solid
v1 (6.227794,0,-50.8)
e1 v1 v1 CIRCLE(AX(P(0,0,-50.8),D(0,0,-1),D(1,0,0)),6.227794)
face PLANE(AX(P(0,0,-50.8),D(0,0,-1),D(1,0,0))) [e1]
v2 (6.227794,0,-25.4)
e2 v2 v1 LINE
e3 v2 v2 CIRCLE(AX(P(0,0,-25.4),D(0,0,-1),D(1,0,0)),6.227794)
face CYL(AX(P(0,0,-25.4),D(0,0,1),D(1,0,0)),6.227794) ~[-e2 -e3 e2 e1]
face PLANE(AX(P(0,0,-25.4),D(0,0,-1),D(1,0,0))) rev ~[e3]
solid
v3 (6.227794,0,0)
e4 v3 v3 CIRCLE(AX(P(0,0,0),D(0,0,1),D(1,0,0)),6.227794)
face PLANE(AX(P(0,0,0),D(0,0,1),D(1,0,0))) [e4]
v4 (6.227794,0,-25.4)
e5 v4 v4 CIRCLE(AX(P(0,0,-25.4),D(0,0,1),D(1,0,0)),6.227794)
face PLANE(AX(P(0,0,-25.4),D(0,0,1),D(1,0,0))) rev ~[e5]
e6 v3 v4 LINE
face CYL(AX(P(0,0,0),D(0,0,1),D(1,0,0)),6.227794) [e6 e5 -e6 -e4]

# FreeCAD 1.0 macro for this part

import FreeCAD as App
import Part
import Sketcher
Q = App.Units.Quantity

doc = App.newDocument("Part")
body = doc.addObject("PartDesign::Body", "Body")

# Sketch on XY plane
sketch1 = body.newObject("Sketcher::SketchObject", "Sketch")
sketch1.AttachmentSupport = (doc.getObject("XY_Plane"), [""])
sketch1.MapMode = "FlatFace"
sketch1.addGeometry(Part.Circle(App.Vector(0, 0, 0), App.Vector(0, 0, 1), 6), False)
sketch1.addConstraint([
    Sketcher.Constraint("Coincident", 0, 3, -1, 1),
    Sketcher.Constraint("Diameter", 0, Q("12.455588 mm")),
])
pad1 = body.newObject("PartDesign::Pad", "Pad")
pad1.Profile = sketch1
pad1.Length = Q("1 in")
pad1.Reversed = True
body2 = doc.addObject("PartDesign::Body", "Body001")

# Sketch on XY plane
sketch2 = body2.newObject("Sketcher::SketchObject", "Sketch001")
sketch2.AttachmentSupport = (doc.getObject("XY_Plane001"), [""])
sketch2.MapMode = "FlatFace"
sketch2.AttachmentOffset = App.Placement(App.Vector(0, 0, -1 * 25.4), App.Rotation())
sketch2.addGeometry(Part.Circle(App.Vector(0, 0, 0), App.Vector(0, 0, 1), 6), False)
sketch2.addConstraint([
    Sketcher.Constraint("Coincident", 0, 3, -1, 1),
    Sketcher.Constraint("Diameter", 0, Q("12.455588 mm")),
])
pad2 = body2.newObject("PartDesign::Pad", "Pad001")
pad2.Profile = sketch2
pad2.Length = Q("1 in")
pad2.Reversed = True

doc.recompute()
